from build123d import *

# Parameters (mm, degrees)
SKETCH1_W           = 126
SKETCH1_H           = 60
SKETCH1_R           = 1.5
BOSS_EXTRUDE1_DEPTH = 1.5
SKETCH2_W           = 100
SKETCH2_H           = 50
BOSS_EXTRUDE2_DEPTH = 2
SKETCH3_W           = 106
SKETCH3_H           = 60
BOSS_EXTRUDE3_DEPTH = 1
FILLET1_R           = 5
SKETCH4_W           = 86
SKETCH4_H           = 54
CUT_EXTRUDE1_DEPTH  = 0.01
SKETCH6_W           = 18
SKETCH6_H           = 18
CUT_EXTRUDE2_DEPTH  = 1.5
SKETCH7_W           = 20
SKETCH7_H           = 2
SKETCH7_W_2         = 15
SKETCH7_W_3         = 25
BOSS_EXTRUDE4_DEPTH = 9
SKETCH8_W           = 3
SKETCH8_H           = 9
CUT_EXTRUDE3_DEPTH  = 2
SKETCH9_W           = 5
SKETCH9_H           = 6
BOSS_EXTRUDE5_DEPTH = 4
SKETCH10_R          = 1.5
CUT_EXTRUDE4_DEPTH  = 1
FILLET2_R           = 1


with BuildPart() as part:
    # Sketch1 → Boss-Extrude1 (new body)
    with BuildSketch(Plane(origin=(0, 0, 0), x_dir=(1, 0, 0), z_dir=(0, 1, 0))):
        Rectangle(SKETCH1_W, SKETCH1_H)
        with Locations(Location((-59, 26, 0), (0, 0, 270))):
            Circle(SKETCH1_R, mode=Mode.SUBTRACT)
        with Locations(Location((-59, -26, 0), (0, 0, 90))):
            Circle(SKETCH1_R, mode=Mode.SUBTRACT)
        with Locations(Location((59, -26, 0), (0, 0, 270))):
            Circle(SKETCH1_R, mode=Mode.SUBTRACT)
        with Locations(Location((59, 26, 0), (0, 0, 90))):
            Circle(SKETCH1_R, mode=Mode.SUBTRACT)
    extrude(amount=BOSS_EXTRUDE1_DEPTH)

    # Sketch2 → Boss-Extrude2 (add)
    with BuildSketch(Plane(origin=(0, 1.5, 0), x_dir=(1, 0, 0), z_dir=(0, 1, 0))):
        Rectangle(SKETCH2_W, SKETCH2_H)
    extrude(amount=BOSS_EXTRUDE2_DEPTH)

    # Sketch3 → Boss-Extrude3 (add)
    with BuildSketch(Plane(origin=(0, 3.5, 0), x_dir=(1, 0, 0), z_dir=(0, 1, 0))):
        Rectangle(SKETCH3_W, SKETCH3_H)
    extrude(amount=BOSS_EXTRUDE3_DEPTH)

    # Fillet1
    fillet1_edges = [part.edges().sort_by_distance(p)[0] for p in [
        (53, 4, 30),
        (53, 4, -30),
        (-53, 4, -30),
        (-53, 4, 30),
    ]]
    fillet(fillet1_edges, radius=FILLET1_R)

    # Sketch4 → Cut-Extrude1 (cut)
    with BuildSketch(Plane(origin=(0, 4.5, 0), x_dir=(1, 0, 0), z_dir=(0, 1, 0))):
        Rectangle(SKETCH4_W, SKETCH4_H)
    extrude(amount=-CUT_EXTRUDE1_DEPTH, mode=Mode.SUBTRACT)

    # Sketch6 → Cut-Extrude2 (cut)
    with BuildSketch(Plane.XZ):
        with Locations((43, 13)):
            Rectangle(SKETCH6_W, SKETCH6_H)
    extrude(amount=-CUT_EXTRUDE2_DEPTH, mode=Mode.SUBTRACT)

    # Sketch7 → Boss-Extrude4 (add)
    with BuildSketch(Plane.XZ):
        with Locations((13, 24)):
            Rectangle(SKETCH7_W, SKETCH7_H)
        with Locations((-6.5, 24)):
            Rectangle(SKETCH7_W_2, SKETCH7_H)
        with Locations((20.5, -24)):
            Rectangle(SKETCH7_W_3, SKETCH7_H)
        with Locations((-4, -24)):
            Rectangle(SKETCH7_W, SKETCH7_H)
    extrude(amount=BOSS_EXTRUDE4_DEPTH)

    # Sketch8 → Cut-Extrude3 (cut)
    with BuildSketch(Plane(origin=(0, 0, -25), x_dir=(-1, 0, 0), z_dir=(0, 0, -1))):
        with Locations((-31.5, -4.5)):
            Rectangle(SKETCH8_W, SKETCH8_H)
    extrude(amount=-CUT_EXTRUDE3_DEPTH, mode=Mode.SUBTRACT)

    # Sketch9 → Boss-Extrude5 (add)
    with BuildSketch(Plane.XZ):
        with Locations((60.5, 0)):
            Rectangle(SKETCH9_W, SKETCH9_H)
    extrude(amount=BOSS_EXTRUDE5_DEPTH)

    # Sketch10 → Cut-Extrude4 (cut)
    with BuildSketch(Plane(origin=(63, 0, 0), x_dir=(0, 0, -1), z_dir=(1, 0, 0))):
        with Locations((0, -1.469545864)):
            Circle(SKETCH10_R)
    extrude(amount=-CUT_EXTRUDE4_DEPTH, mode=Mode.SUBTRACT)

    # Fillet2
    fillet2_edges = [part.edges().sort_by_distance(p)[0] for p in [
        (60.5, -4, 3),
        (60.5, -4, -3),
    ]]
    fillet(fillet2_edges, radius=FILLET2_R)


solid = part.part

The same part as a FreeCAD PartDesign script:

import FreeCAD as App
import Part
import Sketcher
from FreeCAD import Vector


def edges_at(feature, points):
    """Names of the edges that pass closest to the given points."""
    edges = feature.Shape.Edges
    near = lambda p: min(range(len(edges)), key=lambda i: edges[i].distToShape(Part.Vertex(*p))[0])
    return sorted({f"Edge{near(p) + 1}" for p in points})

doc = App.newDocument("Part")
body = doc.addObject("PartDesign::Body", "Body")

sketch1 = doc.addObject("Sketcher::SketchObject", "Sketch")
body.addObject(sketch1)
sketch1.AttachmentSupport = (doc.XZ_Plane, [""])
sketch1.MapMode = "FlatFace"
sketch1.addGeometry(Part.LineSegment(Vector(-63, -30, 0), Vector(-63, 30, 0)), False)
sketch1.addGeometry(Part.LineSegment(Vector(-63, 30, 0), Vector(63, 30, 0)), False)
sketch1.addGeometry(Part.LineSegment(Vector(63, 30, 0), Vector(63, -30, 0)), False)
sketch1.addGeometry(Part.LineSegment(Vector(63, -30, 0), Vector(-63, -30, 0)), False)
sketch1.addGeometry(Part.Circle(Vector(-59, 26, 0), Vector(0, 0, 1), 1.5), False)
sketch1.addGeometry(Part.Circle(Vector(59, 26, 0), Vector(0, 0, 1), 1.5), False)
sketch1.addGeometry(Part.Circle(Vector(-59, -26, 0), Vector(0, 0, 1), 1.5), False)
sketch1.addGeometry(Part.Circle(Vector(59, -26, 0), Vector(0, 0, 1), 1.5), False)
sketch1.addConstraint(Sketcher.Constraint("Coincident", 0, 2, 1, 1))
sketch1.addConstraint(Sketcher.Constraint("Coincident", 1, 2, 2, 1))
sketch1.addConstraint(Sketcher.Constraint("Coincident", 2, 2, 3, 1))
sketch1.addConstraint(Sketcher.Constraint("Coincident", 3, 2, 0, 1))
sketch1.addConstraint(Sketcher.Constraint("Vertical", 0))
sketch1.addConstraint(Sketcher.Constraint("Horizontal", 1))
sketch1.addConstraint(Sketcher.Constraint("Vertical", 2))
sketch1.addConstraint(Sketcher.Constraint("Horizontal", 3))
sketch1.addConstraint(Sketcher.Constraint("Equal", 4, 5))
sketch1.addConstraint(Sketcher.Constraint("Equal", 5, 6))
sketch1.addConstraint(Sketcher.Constraint("Equal", 6, 7))
sketch1.addConstraint(Sketcher.Constraint("Symmetric", 5, 3, 6, 3, -1, 1))
sketch1.addConstraint(Sketcher.Constraint("Symmetric", 4, 3, 7, 3, -1, 1))
sketch1.addConstraint(Sketcher.Constraint("Symmetric", 0, 2, 2, 2, -1, 1))
sketch1.addConstraint(Sketcher.Constraint("Symmetric", 4, 3, 5, 3, -2))
sketch1.addConstraint(Sketcher.Constraint("Diameter", 4, 3.0))
sketch1.addConstraint(Sketcher.Constraint("DistanceX", 1, 1, 1, 2, 126.0))
sketch1.addConstraint(Sketcher.Constraint("DistanceY", 0, 1, 0, 2, 60.0))
sketch1.addConstraint(Sketcher.Constraint("DistanceX", 4, 3, -1, 1, 59.0))
sketch1.addConstraint(Sketcher.Constraint("DistanceY", -1, 1, 4, 3, 26.0))
pad1 = doc.addObject("PartDesign::Pad", "Pad")
body.addObject(pad1)
pad1.Profile = sketch1
pad1.Length = 1.5
pad1.Reversed = True

sketch2 = doc.addObject("Sketcher::SketchObject", "Sketch001")
body.addObject(sketch2)
sketch2.AttachmentSupport = (doc.XZ_Plane, [""])
sketch2.MapMode = "FlatFace"
sketch2.AttachmentOffset = App.Placement(Vector(0, 0, -1.5), App.Rotation())
sketch2.addGeometry(Part.LineSegment(Vector(-50, -25, 0), Vector(-50, 25, 0)), False)
sketch2.addGeometry(Part.LineSegment(Vector(-50, 25, 0), Vector(50, 25, 0)), False)
sketch2.addGeometry(Part.LineSegment(Vector(50, 25, 0), Vector(50, -25, 0)), False)
sketch2.addGeometry(Part.LineSegment(Vector(50, -25, 0), Vector(-50, -25, 0)), False)
sketch2.addConstraint(Sketcher.Constraint("Coincident", 0, 2, 1, 1))
sketch2.addConstraint(Sketcher.Constraint("Coincident", 1, 2, 2, 1))
sketch2.addConstraint(Sketcher.Constraint("Coincident", 2, 2, 3, 1))
sketch2.addConstraint(Sketcher.Constraint("Coincident", 3, 2, 0, 1))
sketch2.addConstraint(Sketcher.Constraint("Vertical", 0))
sketch2.addConstraint(Sketcher.Constraint("Horizontal", 1))
sketch2.addConstraint(Sketcher.Constraint("Vertical", 2))
sketch2.addConstraint(Sketcher.Constraint("Horizontal", 3))
sketch2.addConstraint(Sketcher.Constraint("Symmetric", 0, 2, 2, 2, -1, 1))
sketch2.addConstraint(Sketcher.Constraint("DistanceX", 1, 1, 1, 2, 100.0))
sketch2.addConstraint(Sketcher.Constraint("DistanceY", 0, 1, 0, 2, 50.0))
pad2 = doc.addObject("PartDesign::Pad", "Pad001")
body.addObject(pad2)
pad2.Profile = sketch2
pad2.Length = 2
pad2.Reversed = True

sketch3 = doc.addObject("Sketcher::SketchObject", "Sketch002")
body.addObject(sketch3)
sketch3.AttachmentSupport = (doc.XZ_Plane, [""])
sketch3.MapMode = "FlatFace"
sketch3.AttachmentOffset = App.Placement(Vector(0, 0, -3.5), App.Rotation())
sketch3.addGeometry(Part.LineSegment(Vector(-53, -30, 0), Vector(-53, 30, 0)), False)
sketch3.addGeometry(Part.LineSegment(Vector(-53, 30, 0), Vector(53, 30, 0)), False)
sketch3.addGeometry(Part.LineSegment(Vector(53, 30, 0), Vector(53, -30, 0)), False)
sketch3.addGeometry(Part.LineSegment(Vector(53, -30, 0), Vector(-53, -30, 0)), False)
sketch3.addConstraint(Sketcher.Constraint("Coincident", 0, 2, 1, 1))
sketch3.addConstraint(Sketcher.Constraint("Coincident", 1, 2, 2, 1))
sketch3.addConstraint(Sketcher.Constraint("Coincident", 2, 2, 3, 1))
sketch3.addConstraint(Sketcher.Constraint("Coincident", 3, 2, 0, 1))
sketch3.addConstraint(Sketcher.Constraint("Vertical", 0))
sketch3.addConstraint(Sketcher.Constraint("Horizontal", 1))
sketch3.addConstraint(Sketcher.Constraint("Vertical", 2))
sketch3.addConstraint(Sketcher.Constraint("Horizontal", 3))
sketch3.addConstraint(Sketcher.Constraint("Symmetric", 0, 2, 2, 2, -1, 1))
sketch3.addConstraint(Sketcher.Constraint("DistanceX", 1, 1, 1, 2, 106.0))
sketch3.addConstraint(Sketcher.Constraint("DistanceY", 0, 1, 0, 2, 60.0))
pad3 = doc.addObject("PartDesign::Pad", "Pad002")
body.addObject(pad3)
pad3.Profile = sketch3
pad3.Length = 1
pad3.Reversed = True
doc.recompute()

fillet = doc.addObject("PartDesign::Fillet", "Fillet")
body.addObject(fillet)
fillet.Base = (pad3, edges_at(pad3, [
    (53, 4, 30),
    (53, 4, -30),
    (-53, 4, -30),
    (-53, 4, 30),
]))
fillet.Radius = 5

sketch4 = doc.addObject("Sketcher::SketchObject", "Sketch003")
body.addObject(sketch4)
sketch4.AttachmentSupport = (doc.XZ_Plane, [""])
sketch4.MapMode = "FlatFace"
sketch4.AttachmentOffset = App.Placement(Vector(0, 0, -4.5), App.Rotation())
sketch4.addGeometry(Part.LineSegment(Vector(-43, -27, 0), Vector(-43, 27, 0)), False)
sketch4.addGeometry(Part.LineSegment(Vector(-43, 27, 0), Vector(43, 27, 0)), False)
sketch4.addGeometry(Part.LineSegment(Vector(43, 27, 0), Vector(43, -27, 0)), False)
sketch4.addGeometry(Part.LineSegment(Vector(43, -27, 0), Vector(-43, -27, 0)), False)
sketch4.addConstraint(Sketcher.Constraint("Coincident", 0, 2, 1, 1))
sketch4.addConstraint(Sketcher.Constraint("Coincident", 1, 2, 2, 1))
sketch4.addConstraint(Sketcher.Constraint("Coincident", 2, 2, 3, 1))
sketch4.addConstraint(Sketcher.Constraint("Coincident", 3, 2, 0, 1))
sketch4.addConstraint(Sketcher.Constraint("Vertical", 0))
sketch4.addConstraint(Sketcher.Constraint("Horizontal", 1))
sketch4.addConstraint(Sketcher.Constraint("Vertical", 2))
sketch4.addConstraint(Sketcher.Constraint("Horizontal", 3))
sketch4.addConstraint(Sketcher.Constraint("Symmetric", 0, 2, 2, 2, -1, 1))
sketch4.addConstraint(Sketcher.Constraint("DistanceX", 1, 1, 1, 2, 86.0))
sketch4.addConstraint(Sketcher.Constraint("DistanceY", 0, 1, 0, 2, 54.0))
pocket1 = doc.addObject("PartDesign::Pocket", "Pocket")
body.addObject(pocket1)
pocket1.Profile = sketch4
pocket1.Length = 0.01
pocket1.Reversed = True

sketch5 = doc.addObject("Sketcher::SketchObject", "Sketch004")
body.addObject(sketch5)
sketch5.AttachmentSupport = (doc.XZ_Plane, [""])
sketch5.MapMode = "FlatFace"
sketch5.addGeometry(Part.LineSegment(Vector(34, 22, 0), Vector(34, 4, 0)), False)
sketch5.addGeometry(Part.LineSegment(Vector(34, 4, 0), Vector(52, 4, 0)), False)
sketch5.addGeometry(Part.LineSegment(Vector(52, 4, 0), Vector(52, 22, 0)), False)
sketch5.addGeometry(Part.LineSegment(Vector(52, 22, 0), Vector(34, 22, 0)), False)
sketch5.addConstraint(Sketcher.Constraint("Coincident", 0, 2, 1, 1))
sketch5.addConstraint(Sketcher.Constraint("Coincident", 1, 2, 2, 1))
sketch5.addConstraint(Sketcher.Constraint("Coincident", 2, 2, 3, 1))
sketch5.addConstraint(Sketcher.Constraint("Coincident", 3, 2, 0, 1))
sketch5.addConstraint(Sketcher.Constraint("Vertical", 0))
sketch5.addConstraint(Sketcher.Constraint("Horizontal", 1))
sketch5.addConstraint(Sketcher.Constraint("Vertical", 2))
sketch5.addConstraint(Sketcher.Constraint("Horizontal", 3))
sketch5.addConstraint(Sketcher.Constraint("Equal", 3, 0))
sketch5.addConstraint(Sketcher.Constraint("DistanceX", 1, 1, 1, 2, 18.0))
sketch5.addConstraint(Sketcher.Constraint("DistanceX", -1, 1, 0, 2, 34.0))
sketch5.addConstraint(Sketcher.Constraint("DistanceY", -1, 1, 0, 2, 4.0))
pocket2 = doc.addObject("PartDesign::Pocket", "Pocket001")
body.addObject(pocket2)
pocket2.Profile = sketch5
pocket2.Length = 1.5

sketch6 = doc.addObject("Sketcher::SketchObject", "Sketch005")
body.addObject(sketch6)
sketch6.AttachmentSupport = (doc.XZ_Plane, [""])
sketch6.MapMode = "FlatFace"
sketch6.addGeometry(Part.LineSegment(Vector(3, 25, 0), Vector(3, 23, 0)), False)
sketch6.addGeometry(Part.LineSegment(Vector(3, 23, 0), Vector(23, 23, 0)), False)
sketch6.addGeometry(Part.LineSegment(Vector(23, 23, 0), Vector(23, 25, 0)), False)
sketch6.addGeometry(Part.LineSegment(Vector(23, 25, 0), Vector(3, 25, 0)), False)
sketch6.addGeometry(Part.LineSegment(Vector(-14, 25, 0), Vector(-14, 23, 0)), False)
sketch6.addGeometry(Part.LineSegment(Vector(-14, 23, 0), Vector(1, 23, 0)), False)
sketch6.addGeometry(Part.LineSegment(Vector(1, 23, 0), Vector(1, 25, 0)), False)
sketch6.addGeometry(Part.LineSegment(Vector(1, 25, 0), Vector(-14, 25, 0)), False)
sketch6.addGeometry(Part.LineSegment(Vector(8, -23, 0), Vector(8, -25, 0)), False)
sketch6.addGeometry(Part.LineSegment(Vector(8, -25, 0), Vector(33, -25, 0)), False)
sketch6.addGeometry(Part.LineSegment(Vector(33, -25, 0), Vector(33, -23, 0)), False)
sketch6.addGeometry(Part.LineSegment(Vector(33, -23, 0), Vector(8, -23, 0)), False)
sketch6.addGeometry(Part.LineSegment(Vector(-14, -23, 0), Vector(-14, -25, 0)), False)
sketch6.addGeometry(Part.LineSegment(Vector(-14, -25, 0), Vector(6, -25, 0)), False)
sketch6.addGeometry(Part.LineSegment(Vector(6, -25, 0), Vector(6, -23, 0)), False)
sketch6.addGeometry(Part.LineSegment(Vector(6, -23, 0), Vector(-14, -23, 0)), False)
sketch6.addConstraint(Sketcher.Constraint("Coincident", 0, 2, 1, 1))
sketch6.addConstraint(Sketcher.Constraint("Coincident", 1, 2, 2, 1))
sketch6.addConstraint(Sketcher.Constraint("Coincident", 2, 2, 3, 1))
sketch6.addConstraint(Sketcher.Constraint("Coincident", 3, 2, 0, 1))
sketch6.addConstraint(Sketcher.Constraint("Coincident", 4, 2, 5, 1))
sketch6.addConstraint(Sketcher.Constraint("Coincident", 5, 2, 6, 1))
sketch6.addConstraint(Sketcher.Constraint("Coincident", 6, 2, 7, 1))
sketch6.addConstraint(Sketcher.Constraint("Coincident", 7, 2, 4, 1))
sketch6.addConstraint(Sketcher.Constraint("Coincident", 8, 2, 9, 1))
sketch6.addConstraint(Sketcher.Constraint("Coincident", 9, 2, 10, 1))
sketch6.addConstraint(Sketcher.Constraint("Coincident", 10, 2, 11, 1))
sketch6.addConstraint(Sketcher.Constraint("Coincident", 11, 2, 8, 1))
sketch6.addConstraint(Sketcher.Constraint("Coincident", 12, 2, 13, 1))
sketch6.addConstraint(Sketcher.Constraint("Coincident", 13, 2, 14, 1))
sketch6.addConstraint(Sketcher.Constraint("Coincident", 14, 2, 15, 1))
sketch6.addConstraint(Sketcher.Constraint("Coincident", 15, 2, 12, 1))
sketch6.addConstraint(Sketcher.Constraint("Vertical", 0))
sketch6.addConstraint(Sketcher.Constraint("Horizontal", 1))
sketch6.addConstraint(Sketcher.Constraint("Vertical", 2))
sketch6.addConstraint(Sketcher.Constraint("Horizontal", 3))
sketch6.addConstraint(Sketcher.Constraint("Vertical", 4))
sketch6.addConstraint(Sketcher.Constraint("Horizontal", 5))
sketch6.addConstraint(Sketcher.Constraint("Vertical", 6))
sketch6.addConstraint(Sketcher.Constraint("Horizontal", 7))
sketch6.addConstraint(Sketcher.Constraint("Vertical", 8))
sketch6.addConstraint(Sketcher.Constraint("Horizontal", 9))
sketch6.addConstraint(Sketcher.Constraint("Vertical", 10))
sketch6.addConstraint(Sketcher.Constraint("Horizontal", 11))
sketch6.addConstraint(Sketcher.Constraint("Vertical", 12))
sketch6.addConstraint(Sketcher.Constraint("Horizontal", 13))
sketch6.addConstraint(Sketcher.Constraint("Vertical", 14))
sketch6.addConstraint(Sketcher.Constraint("Horizontal", 15))
sketch6.addConstraint(Sketcher.Constraint("Symmetric", 7, 2, 12, 2, -1))
sketch6.addConstraint(Sketcher.Constraint("Horizontal", 1, 2, 4, 2))
sketch6.addConstraint(Sketcher.Constraint("Horizontal", 3, 2, 6, 2))
sketch6.addConstraint(Sketcher.Constraint("Horizontal", 9, 2, 12, 2))
sketch6.addConstraint(Sketcher.Constraint("Horizontal", 11, 2, 14, 2))
sketch6.addConstraint(Sketcher.Constraint("Equal", 3, 13))
sketch6.addConstraint(Sketcher.Constraint("Equal", 6, 8))
sketch6.addConstraint(Sketcher.Constraint("DistanceX", 1, 1, 1, 2, 20.0))
sketch6.addConstraint(Sketcher.Constraint("DistanceX", 5, 1, 5, 2, 15.0))
sketch6.addConstraint(Sketcher.Constraint("DistanceX", 9, 1, 9, 2, 25.0))
sketch6.addConstraint(Sketcher.Constraint("DistanceY", 0, 2, 0, 1, 2.0))
sketch6.addConstraint(Sketcher.Constraint("DistanceX", -1, 1, 0, 2, 3.0))
sketch6.addConstraint(Sketcher.Constraint("DistanceY", -1, 1, 0, 2, 23.0))
sketch6.addConstraint(Sketcher.Constraint("DistanceX", 4, 2, -1, 1, 14.0))
sketch6.addConstraint(Sketcher.Constraint("DistanceX", -1, 1, 8, 2, 8.0))
pad4 = doc.addObject("PartDesign::Pad", "Pad003")
body.addObject(pad4)
pad4.Profile = sketch6
pad4.Length = 9

sketch7 = doc.addObject("Sketcher::SketchObject", "Sketch006")
body.addObject(sketch7)
sketch7.AttachmentSupport = (doc.XY_Plane, [""])
sketch7.MapMode = "FlatFace"
sketch7.AttachmentOffset = App.Placement(Vector(0, 0, -25), App.Rotation())
sketch7.addGeometry(Part.LineSegment(Vector(33, 0, 0), Vector(33, -9, 0)), False)
sketch7.addGeometry(Part.LineSegment(Vector(33, -9, 0), Vector(30, -9, 0)), False)
sketch7.addGeometry(Part.LineSegment(Vector(30, -9, 0), Vector(30, 0, 0)), False)
sketch7.addGeometry(Part.LineSegment(Vector(30, 0, 0), Vector(33, 0, 0)), False)
sketch7.addConstraint(Sketcher.Constraint("Coincident", 0, 2, 1, 1))
sketch7.addConstraint(Sketcher.Constraint("Coincident", 1, 2, 2, 1))
sketch7.addConstraint(Sketcher.Constraint("Coincident", 2, 2, 3, 1))
sketch7.addConstraint(Sketcher.Constraint("Coincident", 3, 2, 0, 1))
sketch7.addConstraint(Sketcher.Constraint("Vertical", 0))
sketch7.addConstraint(Sketcher.Constraint("Horizontal", 1))
sketch7.addConstraint(Sketcher.Constraint("Vertical", 2))
sketch7.addConstraint(Sketcher.Constraint("Horizontal", 3))
sketch7.addConstraint(Sketcher.Constraint("PointOnObject", 2, 2, -1))
sketch7.addConstraint(Sketcher.Constraint("DistanceX", 1, 2, 1, 1, 3.0))
sketch7.addConstraint(Sketcher.Constraint("DistanceY", 0, 2, 0, 1, 9.0))
sketch7.addConstraint(Sketcher.Constraint("DistanceX", -1, 1, 0, 2, 33.0))
pocket3 = doc.addObject("PartDesign::Pocket", "Pocket002")
body.addObject(pocket3)
pocket3.Profile = sketch7
pocket3.Length = 2
pocket3.Reversed = True

sketch8 = doc.addObject("Sketcher::SketchObject", "Sketch007")
body.addObject(sketch8)
sketch8.AttachmentSupport = (doc.XZ_Plane, [""])
sketch8.MapMode = "FlatFace"
sketch8.addGeometry(Part.LineSegment(Vector(58, 3, 0), Vector(58, -3, 0)), False)
sketch8.addGeometry(Part.LineSegment(Vector(58, -3, 0), Vector(63, -3, 0)), False)
sketch8.addGeometry(Part.LineSegment(Vector(63, -3, 0), Vector(63, 3, 0)), False)
sketch8.addGeometry(Part.LineSegment(Vector(63, 3, 0), Vector(58, 3, 0)), False)
sketch8.addConstraint(Sketcher.Constraint("Coincident", 0, 2, 1, 1))
sketch8.addConstraint(Sketcher.Constraint("Coincident", 1, 2, 2, 1))
sketch8.addConstraint(Sketcher.Constraint("Coincident", 2, 2, 3, 1))
sketch8.addConstraint(Sketcher.Constraint("Coincident", 3, 2, 0, 1))
sketch8.addConstraint(Sketcher.Constraint("Vertical", 0))
sketch8.addConstraint(Sketcher.Constraint("Horizontal", 1))
sketch8.addConstraint(Sketcher.Constraint("Vertical", 2))
sketch8.addConstraint(Sketcher.Constraint("Horizontal", 3))
sketch8.addConstraint(Sketcher.Constraint("DistanceX", 1, 1, 1, 2, 5.0))
sketch8.addConstraint(Sketcher.Constraint("DistanceY", 0, 2, 0, 1, 6.0))
sketch8.addConstraint(Sketcher.Constraint("DistanceX", -1, 1, 0, 2, 58.0))
sketch8.addConstraint(Sketcher.Constraint("DistanceY", 0, 2, -1, 1, 3.0))
pad5 = doc.addObject("PartDesign::Pad", "Pad004")
body.addObject(pad5)
pad5.Profile = sketch8
pad5.Length = 4

sketch9 = doc.addObject("Sketcher::SketchObject", "Sketch008")
body.addObject(sketch9)
sketch9.AttachmentSupport = (doc.YZ_Plane, [""])
sketch9.MapMode = "FlatFace"
sketch9.AttachmentOffset = App.Placement(Vector(0, 0, 63), App.Rotation())
sketch9.addGeometry(Part.Circle(Vector(-1.5, 0, 0), Vector(0, 0, 1), 1.5), False)
sketch9.addConstraint(Sketcher.Constraint("PointOnObject", 0, 3, -1))
sketch9.addConstraint(Sketcher.Constraint("Diameter", 0, 3.0))
sketch9.addConstraint(Sketcher.Constraint("DistanceX", 0, 3, -1, 1, 1.469546))
pocket4 = doc.addObject("PartDesign::Pocket", "Pocket003")
body.addObject(pocket4)
pocket4.Profile = sketch9
pocket4.Length = 1
doc.recompute()

fillet2 = doc.addObject("PartDesign::Fillet", "Fillet001")
body.addObject(fillet2)
fillet2.Base = (pocket4, edges_at(pocket4, [(60.5, -4, 3), (60.5, -4, -3)]))
fillet2.Radius = 1

doc.recompute()
